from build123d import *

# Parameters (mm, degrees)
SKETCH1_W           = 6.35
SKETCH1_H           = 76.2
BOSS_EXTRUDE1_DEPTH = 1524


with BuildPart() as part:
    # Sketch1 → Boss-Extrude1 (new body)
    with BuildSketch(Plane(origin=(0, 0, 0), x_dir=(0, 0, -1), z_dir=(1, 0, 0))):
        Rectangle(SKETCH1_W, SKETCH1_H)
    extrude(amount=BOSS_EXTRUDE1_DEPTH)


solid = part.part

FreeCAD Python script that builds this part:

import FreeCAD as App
import Part
import Sketcher
from FreeCAD import Vector
Q = App.Units.Quantity

doc = App.newDocument("Part")
body = doc.addObject("PartDesign::Body", "Body")

# Sketch on YZ plane
sketch1 = doc.addObject("Sketcher::SketchObject", "Sketch")
body.addObject(sketch1)
sketch1.AttachmentSupport = (doc.YZ_Plane, [""])
sketch1.MapMode = "FlatFace"
sketch1.addGeometry([
    Part.LineSegment(Vector(38, 3, 0), Vector(-38, 3, 0)),
    Part.LineSegment(Vector(-38, 3, 0), Vector(-38, -3, 0)),
    Part.LineSegment(Vector(-38, -3, 0), Vector(38, -3, 0)),
    Part.LineSegment(Vector(38, -3, 0), Vector(38, 3, 0)),
], False)
sketch1.addConstraint([
    Sketcher.Constraint("Coincident", 0, 2, 1, 1),
    Sketcher.Constraint("Coincident", 1, 2, 2, 1),
    Sketcher.Constraint("Coincident", 2, 2, 3, 1),
    Sketcher.Constraint("Coincident", 3, 2, 0, 1),
    Sketcher.Constraint("Horizontal", 0),
    Sketcher.Constraint("Vertical", 1),
    Sketcher.Constraint("Horizontal", 2),
    Sketcher.Constraint("Vertical", 3),
    Sketcher.Constraint("Symmetric", 0, 2, 2, 2, -1, 1),
    Sketcher.Constraint("DistanceX", 0, 2, 0, 1, Q("3 in")),
    Sketcher.Constraint("DistanceY", 1, 2, 1, 1, Q("0.25 in")),
])
pad1 = doc.addObject("PartDesign::Pad", "Pad")
body.addObject(pad1)
pad1.Profile = sketch1
pad1.Length = Q("60 in")

doc.recompute()
